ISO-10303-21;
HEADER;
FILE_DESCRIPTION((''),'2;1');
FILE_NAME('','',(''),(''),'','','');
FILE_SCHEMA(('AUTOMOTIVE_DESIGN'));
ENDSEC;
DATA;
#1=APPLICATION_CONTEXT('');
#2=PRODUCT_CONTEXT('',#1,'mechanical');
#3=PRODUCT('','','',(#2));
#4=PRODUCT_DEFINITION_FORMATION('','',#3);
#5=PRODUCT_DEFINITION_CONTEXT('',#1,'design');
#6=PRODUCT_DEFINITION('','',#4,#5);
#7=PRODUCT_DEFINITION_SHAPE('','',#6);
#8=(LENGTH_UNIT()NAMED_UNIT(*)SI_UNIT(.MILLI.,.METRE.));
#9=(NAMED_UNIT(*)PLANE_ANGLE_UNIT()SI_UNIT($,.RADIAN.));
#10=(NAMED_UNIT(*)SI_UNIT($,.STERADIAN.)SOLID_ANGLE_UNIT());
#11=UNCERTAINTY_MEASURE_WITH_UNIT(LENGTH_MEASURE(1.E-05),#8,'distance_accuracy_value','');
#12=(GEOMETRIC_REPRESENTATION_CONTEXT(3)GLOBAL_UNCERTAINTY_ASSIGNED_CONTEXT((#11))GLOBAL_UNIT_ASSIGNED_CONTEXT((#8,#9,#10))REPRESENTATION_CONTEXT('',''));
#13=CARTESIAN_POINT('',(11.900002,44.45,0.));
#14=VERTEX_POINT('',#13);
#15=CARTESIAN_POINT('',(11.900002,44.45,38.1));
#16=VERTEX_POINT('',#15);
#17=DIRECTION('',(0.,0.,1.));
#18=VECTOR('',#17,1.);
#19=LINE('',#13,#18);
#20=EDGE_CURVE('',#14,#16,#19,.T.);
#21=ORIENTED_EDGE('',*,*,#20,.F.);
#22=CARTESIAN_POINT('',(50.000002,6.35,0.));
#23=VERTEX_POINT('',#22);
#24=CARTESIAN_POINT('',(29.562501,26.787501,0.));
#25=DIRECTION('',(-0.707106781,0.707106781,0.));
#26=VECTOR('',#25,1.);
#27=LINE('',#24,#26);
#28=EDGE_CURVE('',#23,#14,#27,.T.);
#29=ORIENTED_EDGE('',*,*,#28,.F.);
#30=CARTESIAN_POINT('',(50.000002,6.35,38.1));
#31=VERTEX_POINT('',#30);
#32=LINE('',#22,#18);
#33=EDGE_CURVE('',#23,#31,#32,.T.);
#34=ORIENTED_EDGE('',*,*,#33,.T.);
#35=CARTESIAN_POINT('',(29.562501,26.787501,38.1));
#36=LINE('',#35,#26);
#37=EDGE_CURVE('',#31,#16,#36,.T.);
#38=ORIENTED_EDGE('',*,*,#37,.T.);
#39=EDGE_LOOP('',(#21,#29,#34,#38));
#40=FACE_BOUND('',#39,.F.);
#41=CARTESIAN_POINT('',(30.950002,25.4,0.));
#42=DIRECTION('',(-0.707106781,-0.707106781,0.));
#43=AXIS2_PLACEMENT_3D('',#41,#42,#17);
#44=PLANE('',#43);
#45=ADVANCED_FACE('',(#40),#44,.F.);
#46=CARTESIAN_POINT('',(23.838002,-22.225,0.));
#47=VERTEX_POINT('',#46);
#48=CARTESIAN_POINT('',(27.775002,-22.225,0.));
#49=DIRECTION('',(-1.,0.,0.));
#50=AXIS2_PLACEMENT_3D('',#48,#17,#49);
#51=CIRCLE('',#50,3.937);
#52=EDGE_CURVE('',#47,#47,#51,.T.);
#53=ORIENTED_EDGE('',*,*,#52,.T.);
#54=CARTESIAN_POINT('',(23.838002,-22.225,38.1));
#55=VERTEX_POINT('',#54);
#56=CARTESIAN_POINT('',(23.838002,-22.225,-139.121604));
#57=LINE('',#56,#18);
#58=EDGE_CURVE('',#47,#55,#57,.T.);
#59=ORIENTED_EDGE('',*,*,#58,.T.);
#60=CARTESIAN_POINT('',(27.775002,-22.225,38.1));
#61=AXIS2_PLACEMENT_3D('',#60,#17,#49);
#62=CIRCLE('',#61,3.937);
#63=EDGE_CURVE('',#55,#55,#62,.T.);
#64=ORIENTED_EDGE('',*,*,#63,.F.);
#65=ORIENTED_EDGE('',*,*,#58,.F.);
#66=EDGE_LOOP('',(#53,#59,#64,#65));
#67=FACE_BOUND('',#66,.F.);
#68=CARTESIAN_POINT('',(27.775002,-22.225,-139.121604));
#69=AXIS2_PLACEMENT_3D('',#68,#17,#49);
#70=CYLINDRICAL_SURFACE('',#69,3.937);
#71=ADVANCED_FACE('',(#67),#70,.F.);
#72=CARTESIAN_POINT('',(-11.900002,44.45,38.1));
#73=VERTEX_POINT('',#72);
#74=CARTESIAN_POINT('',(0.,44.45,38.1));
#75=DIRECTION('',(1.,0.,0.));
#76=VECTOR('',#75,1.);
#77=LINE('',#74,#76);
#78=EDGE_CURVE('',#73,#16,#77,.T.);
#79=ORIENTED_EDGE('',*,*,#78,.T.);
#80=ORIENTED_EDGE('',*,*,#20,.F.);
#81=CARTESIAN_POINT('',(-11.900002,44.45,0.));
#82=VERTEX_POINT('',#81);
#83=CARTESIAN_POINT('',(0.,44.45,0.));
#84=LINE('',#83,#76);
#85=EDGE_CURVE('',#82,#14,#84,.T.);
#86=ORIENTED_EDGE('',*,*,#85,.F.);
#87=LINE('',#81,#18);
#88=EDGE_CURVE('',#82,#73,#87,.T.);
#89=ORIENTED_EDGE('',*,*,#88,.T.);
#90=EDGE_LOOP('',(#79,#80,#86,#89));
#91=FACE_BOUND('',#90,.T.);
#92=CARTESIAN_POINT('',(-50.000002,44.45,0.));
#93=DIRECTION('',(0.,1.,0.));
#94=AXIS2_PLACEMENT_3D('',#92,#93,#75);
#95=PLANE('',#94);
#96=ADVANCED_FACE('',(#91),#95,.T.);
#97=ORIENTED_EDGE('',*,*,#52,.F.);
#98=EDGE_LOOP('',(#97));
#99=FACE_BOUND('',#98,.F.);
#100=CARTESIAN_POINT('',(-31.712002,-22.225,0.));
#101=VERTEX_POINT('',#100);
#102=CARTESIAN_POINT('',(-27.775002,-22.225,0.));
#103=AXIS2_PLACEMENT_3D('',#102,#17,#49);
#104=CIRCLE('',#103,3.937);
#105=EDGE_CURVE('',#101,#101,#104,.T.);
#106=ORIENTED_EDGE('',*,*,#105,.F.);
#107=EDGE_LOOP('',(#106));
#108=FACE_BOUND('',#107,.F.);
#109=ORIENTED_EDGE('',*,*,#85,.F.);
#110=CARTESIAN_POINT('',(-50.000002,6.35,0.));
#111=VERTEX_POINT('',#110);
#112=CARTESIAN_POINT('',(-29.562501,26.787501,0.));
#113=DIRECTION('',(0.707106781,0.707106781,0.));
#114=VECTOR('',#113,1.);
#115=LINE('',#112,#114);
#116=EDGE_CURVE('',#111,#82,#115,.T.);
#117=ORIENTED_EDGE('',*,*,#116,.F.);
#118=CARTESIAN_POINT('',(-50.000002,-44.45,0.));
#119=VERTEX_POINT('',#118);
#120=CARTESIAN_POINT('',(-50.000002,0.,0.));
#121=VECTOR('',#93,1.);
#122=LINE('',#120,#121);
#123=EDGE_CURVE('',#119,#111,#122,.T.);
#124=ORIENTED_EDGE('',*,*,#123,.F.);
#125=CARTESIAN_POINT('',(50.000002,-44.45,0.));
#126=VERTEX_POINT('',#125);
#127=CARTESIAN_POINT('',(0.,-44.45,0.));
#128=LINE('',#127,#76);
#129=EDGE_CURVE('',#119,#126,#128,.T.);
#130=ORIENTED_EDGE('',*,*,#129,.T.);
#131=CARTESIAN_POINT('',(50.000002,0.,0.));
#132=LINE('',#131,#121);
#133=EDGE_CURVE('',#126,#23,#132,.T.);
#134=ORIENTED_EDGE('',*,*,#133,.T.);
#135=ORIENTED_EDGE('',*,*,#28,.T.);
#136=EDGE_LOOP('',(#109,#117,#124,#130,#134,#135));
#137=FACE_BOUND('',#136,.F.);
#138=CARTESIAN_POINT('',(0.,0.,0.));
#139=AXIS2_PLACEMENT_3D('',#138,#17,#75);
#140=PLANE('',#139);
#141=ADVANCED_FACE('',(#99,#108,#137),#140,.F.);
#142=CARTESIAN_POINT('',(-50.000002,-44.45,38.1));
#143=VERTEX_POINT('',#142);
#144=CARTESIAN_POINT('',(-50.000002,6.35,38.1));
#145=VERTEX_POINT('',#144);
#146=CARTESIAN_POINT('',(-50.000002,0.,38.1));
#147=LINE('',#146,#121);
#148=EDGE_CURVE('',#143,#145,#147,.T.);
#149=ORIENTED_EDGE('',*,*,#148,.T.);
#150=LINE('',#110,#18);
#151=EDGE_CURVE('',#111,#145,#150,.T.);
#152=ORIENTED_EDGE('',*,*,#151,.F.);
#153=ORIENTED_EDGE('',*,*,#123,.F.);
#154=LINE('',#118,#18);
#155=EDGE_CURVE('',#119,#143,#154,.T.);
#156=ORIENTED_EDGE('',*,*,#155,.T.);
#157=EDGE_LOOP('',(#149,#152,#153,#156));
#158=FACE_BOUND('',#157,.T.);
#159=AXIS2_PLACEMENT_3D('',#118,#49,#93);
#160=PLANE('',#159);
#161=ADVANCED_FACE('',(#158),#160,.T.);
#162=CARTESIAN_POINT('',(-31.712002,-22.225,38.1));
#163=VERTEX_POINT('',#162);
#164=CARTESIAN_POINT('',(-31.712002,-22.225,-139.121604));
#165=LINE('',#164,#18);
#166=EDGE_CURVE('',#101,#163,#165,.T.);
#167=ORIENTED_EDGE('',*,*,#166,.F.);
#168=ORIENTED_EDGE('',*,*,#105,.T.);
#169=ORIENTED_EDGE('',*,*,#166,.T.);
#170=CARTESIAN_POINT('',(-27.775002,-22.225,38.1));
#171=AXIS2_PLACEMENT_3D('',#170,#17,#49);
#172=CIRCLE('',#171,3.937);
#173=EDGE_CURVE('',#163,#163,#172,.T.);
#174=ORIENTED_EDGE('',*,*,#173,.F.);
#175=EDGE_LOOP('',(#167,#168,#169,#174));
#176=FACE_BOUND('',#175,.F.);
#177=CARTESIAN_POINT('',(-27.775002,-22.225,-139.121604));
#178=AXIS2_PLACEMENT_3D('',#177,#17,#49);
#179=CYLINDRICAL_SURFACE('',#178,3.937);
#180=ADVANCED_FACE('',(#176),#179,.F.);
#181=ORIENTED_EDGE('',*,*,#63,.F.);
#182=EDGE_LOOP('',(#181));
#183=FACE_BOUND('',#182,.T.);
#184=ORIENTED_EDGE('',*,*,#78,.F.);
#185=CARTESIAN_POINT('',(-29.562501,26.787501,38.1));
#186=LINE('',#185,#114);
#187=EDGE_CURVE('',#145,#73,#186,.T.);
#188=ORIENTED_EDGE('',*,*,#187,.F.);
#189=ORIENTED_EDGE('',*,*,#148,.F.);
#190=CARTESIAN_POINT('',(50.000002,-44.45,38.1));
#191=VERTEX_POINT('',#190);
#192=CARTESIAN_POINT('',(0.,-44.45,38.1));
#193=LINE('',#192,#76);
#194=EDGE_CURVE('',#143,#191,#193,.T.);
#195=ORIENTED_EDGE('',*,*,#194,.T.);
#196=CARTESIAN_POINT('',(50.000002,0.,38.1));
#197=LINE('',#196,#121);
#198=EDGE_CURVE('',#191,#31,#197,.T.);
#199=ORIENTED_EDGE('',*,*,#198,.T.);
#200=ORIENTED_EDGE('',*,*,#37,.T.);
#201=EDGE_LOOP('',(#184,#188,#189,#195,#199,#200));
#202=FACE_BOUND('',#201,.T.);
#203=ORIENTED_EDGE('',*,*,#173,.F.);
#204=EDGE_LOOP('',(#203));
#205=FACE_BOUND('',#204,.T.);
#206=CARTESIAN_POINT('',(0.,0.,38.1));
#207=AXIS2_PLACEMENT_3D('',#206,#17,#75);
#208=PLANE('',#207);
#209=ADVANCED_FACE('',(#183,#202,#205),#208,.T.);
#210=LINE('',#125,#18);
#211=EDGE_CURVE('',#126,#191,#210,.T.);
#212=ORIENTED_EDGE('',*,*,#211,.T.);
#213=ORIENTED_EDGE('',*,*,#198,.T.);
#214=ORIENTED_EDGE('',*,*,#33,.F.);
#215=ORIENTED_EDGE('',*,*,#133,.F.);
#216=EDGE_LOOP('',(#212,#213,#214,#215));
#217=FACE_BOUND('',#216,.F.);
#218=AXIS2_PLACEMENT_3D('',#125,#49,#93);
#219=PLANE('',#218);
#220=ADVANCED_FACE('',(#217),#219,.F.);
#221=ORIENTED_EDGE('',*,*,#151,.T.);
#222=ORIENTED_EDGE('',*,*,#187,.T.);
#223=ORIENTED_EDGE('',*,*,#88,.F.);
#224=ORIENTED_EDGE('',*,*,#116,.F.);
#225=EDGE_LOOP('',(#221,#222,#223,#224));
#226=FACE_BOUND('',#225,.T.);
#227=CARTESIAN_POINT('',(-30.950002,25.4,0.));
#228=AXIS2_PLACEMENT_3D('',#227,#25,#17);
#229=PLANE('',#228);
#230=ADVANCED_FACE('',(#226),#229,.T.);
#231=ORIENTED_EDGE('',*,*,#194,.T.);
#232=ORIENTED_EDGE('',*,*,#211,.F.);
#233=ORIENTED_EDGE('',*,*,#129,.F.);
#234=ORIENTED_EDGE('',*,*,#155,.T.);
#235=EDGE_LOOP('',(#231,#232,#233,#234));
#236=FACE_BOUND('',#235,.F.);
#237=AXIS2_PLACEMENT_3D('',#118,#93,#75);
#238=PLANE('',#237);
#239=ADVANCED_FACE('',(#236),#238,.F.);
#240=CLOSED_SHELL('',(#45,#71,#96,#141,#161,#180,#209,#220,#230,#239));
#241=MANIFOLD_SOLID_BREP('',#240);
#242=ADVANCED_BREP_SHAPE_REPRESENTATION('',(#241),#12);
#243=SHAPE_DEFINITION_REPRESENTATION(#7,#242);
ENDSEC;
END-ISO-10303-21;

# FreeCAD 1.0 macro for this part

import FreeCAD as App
import Part
import Sketcher
Q = App.Units.Quantity


def edges_at(feature, points):
    """Names of the edges that pass closest to the given points."""
    edges = feature.Shape.Edges
    near = lambda p: min(range(len(edges)), key=lambda i: edges[i].distToShape(Part.Vertex(*p))[0])
    return sorted({f"Edge{near(p) + 1}" for p in points})


def add_polygon(sketch, points):
    """Adds a closed chain of lines whose ends are joined by coincident constraints."""
    first, n = sketch.GeometryCount, len(points)
    for a, b in zip(points, points[1:] + points[:1]):
        sketch.addGeometry(Part.LineSegment(App.Vector(*a, 0), App.Vector(*b, 0)), False)
    for i in range(n):
        sketch.addConstraint(Sketcher.Constraint("Coincident", first + i, 2, first + (i + 1) % n, 1))

doc = App.newDocument("Part")
body = doc.addObject("PartDesign::Body", "Body")

# Sketch on XY plane
sketch1 = doc.addObject("Sketcher::SketchObject", "Sketch")
body.addObject(sketch1)
sketch1.AttachmentSupport = (doc.XY_Plane, [""])
sketch1.MapMode = "FlatFace"
add_polygon(sketch1, [(-50, 44), (-50, -44), (50, -44), (50, 44)])  # lines 0-3
sketch1.addConstraint(Sketcher.Constraint("Vertical", 0))
sketch1.addConstraint(Sketcher.Constraint("Horizontal", 1))
sketch1.addConstraint(Sketcher.Constraint("Vertical", 2))
sketch1.addConstraint(Sketcher.Constraint("Horizontal", 3))
sketch1.addConstraint(Sketcher.Constraint("Symmetric", 0, 2, 2, 2, -1, 1))
sketch1.addConstraint(Sketcher.Constraint("DistanceY", 0, 2, 0, 1, Q("3.5 in")))
sketch1.addConstraint(Sketcher.Constraint("DistanceX", 1, 1, 1, 2, 100.000004))
pad1 = doc.addObject("PartDesign::Pad", "Pad")
body.addObject(pad1)
pad1.Profile = sketch1
pad1.Length = Q("1.5 in")
doc.recompute()

chamfer = doc.addObject("PartDesign::Chamfer", "Chamfer")
body.addObject(chamfer)
chamfer.Base = (pad1, edges_at(pad1, [(50, 44.45, 19.05), (-50, 44.45, 19.05)]))
chamfer.Size = Q("1.5 in")

# Sketch on XY plane
sketch2 = doc.addObject("Sketcher::SketchObject", "Sketch001")
body.addObject(sketch2)
sketch2.AttachmentSupport = (doc.XY_Plane, [""])
sketch2.MapMode = "FlatFace"
sketch2.addGeometry(Part.Circle(App.Vector(-27.8, -22.2, 0), App.Vector(0, 0, 1), 3.9), False)
sketch2.addGeometry(Part.Circle(App.Vector(27.8, -22.2, 0), App.Vector(0, 0, 1), 3.9), False)
sketch2.addConstraint(Sketcher.Constraint("Equal", 0, 1))
sketch2.addConstraint(Sketcher.Constraint("Symmetric", 0, 3, 1, 3, -2))
sketch2.addConstraint(Sketcher.Constraint("Diameter", 0, Q("0.31 in")))
sketch2.addConstraint(Sketcher.Constraint("DistanceY", 0, 3, -1, 1, Q("0.875 in")))
sketch2.addConstraint(Sketcher.Constraint("DistanceX", 0, 3, -1, 1, 27.775002))
doc.recompute()
hole = doc.addObject("PartDesign::Hole", "Hole")
body.addObject(hole)
hole.Profile = sketch2
hole.ThreadType = "None"
hole.Diameter = Q("0.31 in")
hole.DepthType = "ThroughAll"
hole.Reversed = True

doc.recompute()
